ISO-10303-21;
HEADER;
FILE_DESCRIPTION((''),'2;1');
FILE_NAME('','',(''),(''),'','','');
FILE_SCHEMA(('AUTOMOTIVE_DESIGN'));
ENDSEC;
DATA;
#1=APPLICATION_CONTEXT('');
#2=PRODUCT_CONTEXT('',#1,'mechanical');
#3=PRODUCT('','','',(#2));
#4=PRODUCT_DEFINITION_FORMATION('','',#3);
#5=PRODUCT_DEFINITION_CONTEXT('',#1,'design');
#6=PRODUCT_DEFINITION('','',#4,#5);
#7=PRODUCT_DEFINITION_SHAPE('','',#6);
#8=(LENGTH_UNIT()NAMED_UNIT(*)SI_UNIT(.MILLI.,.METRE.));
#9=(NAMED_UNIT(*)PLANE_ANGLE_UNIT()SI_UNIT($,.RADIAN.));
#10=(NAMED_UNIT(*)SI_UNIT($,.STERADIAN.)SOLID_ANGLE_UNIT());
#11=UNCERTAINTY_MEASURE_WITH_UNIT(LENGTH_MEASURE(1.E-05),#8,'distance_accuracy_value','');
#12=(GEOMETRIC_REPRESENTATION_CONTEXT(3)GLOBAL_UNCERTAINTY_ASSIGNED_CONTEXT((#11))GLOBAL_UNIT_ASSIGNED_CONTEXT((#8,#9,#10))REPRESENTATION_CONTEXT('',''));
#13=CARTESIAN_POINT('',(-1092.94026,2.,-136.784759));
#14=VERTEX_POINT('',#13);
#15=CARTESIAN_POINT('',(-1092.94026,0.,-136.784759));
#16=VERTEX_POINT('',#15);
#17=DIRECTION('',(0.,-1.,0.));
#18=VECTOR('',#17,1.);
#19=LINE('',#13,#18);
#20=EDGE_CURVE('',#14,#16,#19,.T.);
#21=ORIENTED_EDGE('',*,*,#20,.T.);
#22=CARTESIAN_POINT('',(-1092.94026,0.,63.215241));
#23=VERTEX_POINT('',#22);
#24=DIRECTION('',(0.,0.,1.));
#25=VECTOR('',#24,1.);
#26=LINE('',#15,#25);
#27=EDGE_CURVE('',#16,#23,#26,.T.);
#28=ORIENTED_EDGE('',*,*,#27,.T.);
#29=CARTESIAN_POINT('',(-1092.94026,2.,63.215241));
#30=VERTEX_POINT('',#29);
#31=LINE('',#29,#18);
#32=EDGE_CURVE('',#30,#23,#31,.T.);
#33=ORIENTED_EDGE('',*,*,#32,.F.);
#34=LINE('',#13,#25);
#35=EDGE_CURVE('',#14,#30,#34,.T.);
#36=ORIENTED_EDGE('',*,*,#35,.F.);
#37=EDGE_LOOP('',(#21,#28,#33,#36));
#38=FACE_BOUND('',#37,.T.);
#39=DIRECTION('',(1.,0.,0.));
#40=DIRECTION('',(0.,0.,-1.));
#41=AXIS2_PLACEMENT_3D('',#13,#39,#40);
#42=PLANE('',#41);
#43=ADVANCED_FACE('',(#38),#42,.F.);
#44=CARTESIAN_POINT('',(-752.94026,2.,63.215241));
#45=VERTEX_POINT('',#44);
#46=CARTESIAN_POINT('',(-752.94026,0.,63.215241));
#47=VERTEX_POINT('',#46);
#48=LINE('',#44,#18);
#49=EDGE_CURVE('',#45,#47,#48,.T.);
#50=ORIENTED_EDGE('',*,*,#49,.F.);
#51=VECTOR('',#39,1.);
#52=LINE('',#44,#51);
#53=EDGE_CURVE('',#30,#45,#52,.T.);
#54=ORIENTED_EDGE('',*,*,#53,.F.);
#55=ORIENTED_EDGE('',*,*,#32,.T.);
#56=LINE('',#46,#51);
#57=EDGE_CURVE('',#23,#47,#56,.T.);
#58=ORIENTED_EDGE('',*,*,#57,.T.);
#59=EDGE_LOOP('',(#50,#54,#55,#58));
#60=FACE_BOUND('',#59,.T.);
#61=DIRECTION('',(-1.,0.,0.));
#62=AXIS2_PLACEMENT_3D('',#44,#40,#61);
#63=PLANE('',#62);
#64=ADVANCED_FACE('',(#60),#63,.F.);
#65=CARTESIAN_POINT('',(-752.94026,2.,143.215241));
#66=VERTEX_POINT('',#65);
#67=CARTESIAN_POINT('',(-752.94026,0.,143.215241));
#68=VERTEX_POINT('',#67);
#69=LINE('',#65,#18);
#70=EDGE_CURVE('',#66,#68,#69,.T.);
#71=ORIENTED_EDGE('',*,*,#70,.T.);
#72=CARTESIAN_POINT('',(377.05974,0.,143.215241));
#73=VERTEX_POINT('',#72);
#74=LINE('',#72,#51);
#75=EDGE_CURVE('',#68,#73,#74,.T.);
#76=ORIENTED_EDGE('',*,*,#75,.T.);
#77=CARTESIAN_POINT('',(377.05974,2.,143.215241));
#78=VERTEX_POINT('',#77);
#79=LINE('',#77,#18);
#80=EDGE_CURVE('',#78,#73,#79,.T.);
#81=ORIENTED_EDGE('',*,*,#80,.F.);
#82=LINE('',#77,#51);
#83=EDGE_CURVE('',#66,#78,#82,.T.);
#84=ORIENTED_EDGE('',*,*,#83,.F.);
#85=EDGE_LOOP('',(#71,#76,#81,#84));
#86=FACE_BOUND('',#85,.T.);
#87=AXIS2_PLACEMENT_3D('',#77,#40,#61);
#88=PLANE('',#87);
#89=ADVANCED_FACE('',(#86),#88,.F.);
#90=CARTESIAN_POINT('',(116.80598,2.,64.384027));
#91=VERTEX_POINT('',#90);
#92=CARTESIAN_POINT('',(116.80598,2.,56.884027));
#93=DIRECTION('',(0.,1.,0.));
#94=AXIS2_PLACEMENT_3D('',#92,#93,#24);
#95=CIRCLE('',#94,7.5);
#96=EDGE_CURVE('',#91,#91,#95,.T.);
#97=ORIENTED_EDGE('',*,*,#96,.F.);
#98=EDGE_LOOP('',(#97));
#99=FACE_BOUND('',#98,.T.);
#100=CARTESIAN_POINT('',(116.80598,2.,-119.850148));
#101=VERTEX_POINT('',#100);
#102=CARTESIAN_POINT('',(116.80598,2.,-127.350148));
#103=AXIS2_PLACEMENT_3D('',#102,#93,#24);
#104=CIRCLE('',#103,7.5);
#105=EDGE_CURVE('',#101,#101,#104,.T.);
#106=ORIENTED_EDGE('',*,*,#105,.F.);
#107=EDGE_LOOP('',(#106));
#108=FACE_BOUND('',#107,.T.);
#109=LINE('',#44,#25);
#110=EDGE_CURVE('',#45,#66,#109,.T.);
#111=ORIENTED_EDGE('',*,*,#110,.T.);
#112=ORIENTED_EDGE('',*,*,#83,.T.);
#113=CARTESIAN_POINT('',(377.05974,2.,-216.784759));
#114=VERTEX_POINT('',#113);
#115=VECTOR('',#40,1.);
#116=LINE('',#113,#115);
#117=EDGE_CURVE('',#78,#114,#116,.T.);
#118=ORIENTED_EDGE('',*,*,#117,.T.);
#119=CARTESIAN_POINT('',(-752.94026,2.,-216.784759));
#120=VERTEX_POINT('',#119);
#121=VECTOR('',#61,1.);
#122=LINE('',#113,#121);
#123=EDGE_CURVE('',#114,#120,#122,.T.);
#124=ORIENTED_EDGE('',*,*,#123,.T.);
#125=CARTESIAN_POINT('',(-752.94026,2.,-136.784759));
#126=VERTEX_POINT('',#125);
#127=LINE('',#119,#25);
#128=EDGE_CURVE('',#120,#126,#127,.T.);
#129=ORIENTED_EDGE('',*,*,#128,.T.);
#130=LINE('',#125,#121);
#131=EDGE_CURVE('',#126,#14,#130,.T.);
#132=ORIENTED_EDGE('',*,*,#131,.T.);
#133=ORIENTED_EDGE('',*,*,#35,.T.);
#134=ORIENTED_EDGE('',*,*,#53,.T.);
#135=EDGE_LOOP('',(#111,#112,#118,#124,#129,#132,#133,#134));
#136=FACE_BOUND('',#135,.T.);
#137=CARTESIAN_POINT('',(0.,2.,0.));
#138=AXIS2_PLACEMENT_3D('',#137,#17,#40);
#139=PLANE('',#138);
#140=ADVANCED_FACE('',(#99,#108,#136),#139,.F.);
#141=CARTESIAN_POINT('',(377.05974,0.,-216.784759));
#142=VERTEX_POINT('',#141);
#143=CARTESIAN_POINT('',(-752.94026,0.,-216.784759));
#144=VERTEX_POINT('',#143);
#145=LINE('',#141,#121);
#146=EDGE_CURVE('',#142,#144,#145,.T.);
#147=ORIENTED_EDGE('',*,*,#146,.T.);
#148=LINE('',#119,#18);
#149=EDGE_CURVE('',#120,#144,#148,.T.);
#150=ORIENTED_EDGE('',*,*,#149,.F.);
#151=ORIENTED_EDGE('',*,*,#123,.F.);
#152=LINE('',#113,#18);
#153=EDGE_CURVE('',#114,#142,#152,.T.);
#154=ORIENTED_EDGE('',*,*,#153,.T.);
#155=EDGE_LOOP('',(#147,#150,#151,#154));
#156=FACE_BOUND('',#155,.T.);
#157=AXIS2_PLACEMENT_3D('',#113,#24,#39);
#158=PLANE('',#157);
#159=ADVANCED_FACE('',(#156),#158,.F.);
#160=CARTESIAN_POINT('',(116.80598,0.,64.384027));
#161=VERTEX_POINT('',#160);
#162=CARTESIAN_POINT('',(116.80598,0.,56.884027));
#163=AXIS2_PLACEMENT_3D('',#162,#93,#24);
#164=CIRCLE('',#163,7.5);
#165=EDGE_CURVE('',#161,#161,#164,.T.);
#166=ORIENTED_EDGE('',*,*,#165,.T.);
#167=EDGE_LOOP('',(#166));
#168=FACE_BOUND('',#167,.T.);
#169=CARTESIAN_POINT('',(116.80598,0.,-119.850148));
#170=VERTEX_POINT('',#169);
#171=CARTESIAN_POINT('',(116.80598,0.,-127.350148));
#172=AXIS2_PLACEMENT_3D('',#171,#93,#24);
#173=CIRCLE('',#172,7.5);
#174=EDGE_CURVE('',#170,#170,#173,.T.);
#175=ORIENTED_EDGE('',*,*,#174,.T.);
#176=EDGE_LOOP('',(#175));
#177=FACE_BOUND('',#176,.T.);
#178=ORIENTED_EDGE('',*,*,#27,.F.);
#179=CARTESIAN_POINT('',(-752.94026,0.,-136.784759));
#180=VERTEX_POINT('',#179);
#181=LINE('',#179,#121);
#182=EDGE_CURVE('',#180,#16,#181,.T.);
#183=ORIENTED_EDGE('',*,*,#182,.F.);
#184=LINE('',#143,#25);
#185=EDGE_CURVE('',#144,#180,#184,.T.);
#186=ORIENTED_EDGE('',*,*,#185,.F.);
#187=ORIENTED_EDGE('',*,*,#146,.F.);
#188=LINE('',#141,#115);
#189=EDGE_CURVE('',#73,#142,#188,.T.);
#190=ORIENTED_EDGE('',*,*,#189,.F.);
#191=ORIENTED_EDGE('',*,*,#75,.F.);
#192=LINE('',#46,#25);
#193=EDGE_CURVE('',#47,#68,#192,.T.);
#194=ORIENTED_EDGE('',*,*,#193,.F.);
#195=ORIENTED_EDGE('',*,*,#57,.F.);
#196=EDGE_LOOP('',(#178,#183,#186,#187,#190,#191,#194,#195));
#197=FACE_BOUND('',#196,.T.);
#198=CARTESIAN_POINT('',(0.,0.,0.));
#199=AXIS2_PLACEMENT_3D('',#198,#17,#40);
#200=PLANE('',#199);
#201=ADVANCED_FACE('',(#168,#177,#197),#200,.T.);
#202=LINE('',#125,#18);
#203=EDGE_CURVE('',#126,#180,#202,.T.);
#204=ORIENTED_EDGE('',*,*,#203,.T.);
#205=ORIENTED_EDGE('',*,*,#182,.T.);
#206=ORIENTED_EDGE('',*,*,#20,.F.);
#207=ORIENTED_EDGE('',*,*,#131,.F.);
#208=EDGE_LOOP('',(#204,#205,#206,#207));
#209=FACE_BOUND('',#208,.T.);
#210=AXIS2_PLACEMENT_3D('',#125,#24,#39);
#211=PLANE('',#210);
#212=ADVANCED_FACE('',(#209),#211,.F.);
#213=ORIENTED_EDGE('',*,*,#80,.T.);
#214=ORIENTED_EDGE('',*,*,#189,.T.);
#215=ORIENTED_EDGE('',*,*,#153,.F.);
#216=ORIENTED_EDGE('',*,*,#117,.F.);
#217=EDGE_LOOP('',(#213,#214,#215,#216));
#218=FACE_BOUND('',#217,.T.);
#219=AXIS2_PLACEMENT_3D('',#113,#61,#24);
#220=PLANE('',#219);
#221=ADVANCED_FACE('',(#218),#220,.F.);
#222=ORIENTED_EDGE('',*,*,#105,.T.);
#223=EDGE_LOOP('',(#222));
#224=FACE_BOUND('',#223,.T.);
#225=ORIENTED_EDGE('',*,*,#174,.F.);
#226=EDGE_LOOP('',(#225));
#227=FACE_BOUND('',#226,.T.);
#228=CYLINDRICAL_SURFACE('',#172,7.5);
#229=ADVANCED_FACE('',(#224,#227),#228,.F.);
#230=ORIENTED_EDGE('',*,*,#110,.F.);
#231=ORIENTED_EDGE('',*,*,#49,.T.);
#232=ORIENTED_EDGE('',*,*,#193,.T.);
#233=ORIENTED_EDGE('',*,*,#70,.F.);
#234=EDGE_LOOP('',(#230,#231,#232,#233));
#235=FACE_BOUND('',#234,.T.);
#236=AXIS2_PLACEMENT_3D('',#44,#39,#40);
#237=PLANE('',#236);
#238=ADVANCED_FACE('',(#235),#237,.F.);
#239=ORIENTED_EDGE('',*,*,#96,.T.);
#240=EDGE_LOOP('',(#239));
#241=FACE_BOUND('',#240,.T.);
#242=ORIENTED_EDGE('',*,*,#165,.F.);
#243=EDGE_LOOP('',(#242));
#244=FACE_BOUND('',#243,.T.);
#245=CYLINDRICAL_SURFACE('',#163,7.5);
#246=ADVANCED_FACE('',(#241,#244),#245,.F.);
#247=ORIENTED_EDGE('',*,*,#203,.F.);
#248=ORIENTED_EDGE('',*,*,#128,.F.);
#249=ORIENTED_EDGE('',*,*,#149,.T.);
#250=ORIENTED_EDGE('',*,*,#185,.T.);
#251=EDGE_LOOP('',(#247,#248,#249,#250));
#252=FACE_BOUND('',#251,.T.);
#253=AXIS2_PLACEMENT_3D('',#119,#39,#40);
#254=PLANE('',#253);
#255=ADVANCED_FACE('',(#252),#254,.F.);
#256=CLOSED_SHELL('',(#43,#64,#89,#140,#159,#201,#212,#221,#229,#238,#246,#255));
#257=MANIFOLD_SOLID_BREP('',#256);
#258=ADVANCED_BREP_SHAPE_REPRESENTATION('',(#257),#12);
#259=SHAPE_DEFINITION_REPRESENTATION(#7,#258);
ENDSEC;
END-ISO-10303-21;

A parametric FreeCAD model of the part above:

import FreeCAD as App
import Part
import Sketcher
from FreeCAD import Vector


def add_polygon(sketch, points):
    """Adds a closed chain of lines whose ends are joined by coincident constraints."""
    first, n = sketch.GeometryCount, len(points)
    for a, b in zip(points, points[1:] + points[:1]):
        sketch.addGeometry(Part.LineSegment(App.Vector(*a, 0), App.Vector(*b, 0)), False)
    for i in range(n):
        sketch.addConstraint(Sketcher.Constraint("Coincident", first + i, 2, first + (i + 1) % n, 1))

doc = App.newDocument("Part")
body = doc.addObject("PartDesign::Body", "Body")

# Sketch on XZ plane
sketch1 = body.newObject("Sketcher::SketchObject", "Sketch")
sketch1.AttachmentSupport = (doc.getObject("XZ_Plane"), [""])
sketch1.MapMode = "FlatFace"
add_polygon(sketch1, [(-752.94026, 63.215241), (-752.94026, 143.215241), (377.05974, 143.215241), (377.05974, -216.784759), (-752.94026, -216.784759), (-752.94026, -136.784759), (-1092.94026, -136.784759), (-1092.94026, 63.215241)])  # lines 0-7
sketch1.addConstraint([
    Sketcher.Constraint("Vertical", 0),
    Sketcher.Constraint("Horizontal", 1),
    Sketcher.Constraint("Vertical", 2),
    Sketcher.Constraint("Horizontal", 3),
    Sketcher.Constraint("Vertical", 4),
    Sketcher.Constraint("Horizontal", 5),
    Sketcher.Constraint("Vertical", 6),
    Sketcher.Constraint("Horizontal", 7),
    Sketcher.Constraint("Vertical", 0, 2, 3, 2),
    Sketcher.Constraint("Equal", 0, 4),
    Sketcher.Constraint("DistanceX", 1, 1, 1, 2, 1130.0),
    Sketcher.Constraint("DistanceX", 5, 2, 5, 1, 340.0),
    Sketcher.Constraint("DistanceY", 0, 1, 0, 2, 80.0),
    Sketcher.Constraint("DistanceY", 2, 2, 2, 1, 360.0),
    Sketcher.Constraint("DistanceX", 0, 2, -1, 1, 752.94026),
    Sketcher.Constraint("DistanceY", -1, 1, 0, 2, 143.215241),
])
pad1 = body.newObject("PartDesign::Pad", "Pad")
pad1.Profile = sketch1
pad1.Length = 2
pad1.Reversed = True

# Sketch on XZ plane
sketch2 = body.newObject("Sketcher::SketchObject", "Sketch001")
sketch2.AttachmentSupport = (doc.getObject("XZ_Plane"), [""])
sketch2.MapMode = "FlatFace"
sketch2.AttachmentOffset = App.Placement(Vector(0, 0, -2), App.Rotation())
sketch2.addGeometry([
    Part.Circle(Vector(116.80598, -127.350148, 0), Vector(0, 0, 1), 7.5),
    Part.Circle(Vector(116.80598, 56.884027, 0), Vector(0, 0, 1), 7.5),
], False)
sketch2.addConstraint([
    Sketcher.Constraint("Equal", 0, 1),
    Sketcher.Constraint("Vertical", 0, 3, 1, 3),
    Sketcher.Constraint("Diameter", 0, 15.0),
    Sketcher.Constraint("DistanceX", -1, 1, 0, 3, 116.80598),
    Sketcher.Constraint("DistanceY", 0, 3, -1, 1, 127.350148),
    Sketcher.Constraint("DistanceY", -1, 1, 1, 3, 56.884027),
])
pocket1 = body.newObject("PartDesign::Pocket", "Pocket")
pocket1.Profile = sketch2
pocket1.Length = 2
pocket1.Reversed = True

doc.recompute()
